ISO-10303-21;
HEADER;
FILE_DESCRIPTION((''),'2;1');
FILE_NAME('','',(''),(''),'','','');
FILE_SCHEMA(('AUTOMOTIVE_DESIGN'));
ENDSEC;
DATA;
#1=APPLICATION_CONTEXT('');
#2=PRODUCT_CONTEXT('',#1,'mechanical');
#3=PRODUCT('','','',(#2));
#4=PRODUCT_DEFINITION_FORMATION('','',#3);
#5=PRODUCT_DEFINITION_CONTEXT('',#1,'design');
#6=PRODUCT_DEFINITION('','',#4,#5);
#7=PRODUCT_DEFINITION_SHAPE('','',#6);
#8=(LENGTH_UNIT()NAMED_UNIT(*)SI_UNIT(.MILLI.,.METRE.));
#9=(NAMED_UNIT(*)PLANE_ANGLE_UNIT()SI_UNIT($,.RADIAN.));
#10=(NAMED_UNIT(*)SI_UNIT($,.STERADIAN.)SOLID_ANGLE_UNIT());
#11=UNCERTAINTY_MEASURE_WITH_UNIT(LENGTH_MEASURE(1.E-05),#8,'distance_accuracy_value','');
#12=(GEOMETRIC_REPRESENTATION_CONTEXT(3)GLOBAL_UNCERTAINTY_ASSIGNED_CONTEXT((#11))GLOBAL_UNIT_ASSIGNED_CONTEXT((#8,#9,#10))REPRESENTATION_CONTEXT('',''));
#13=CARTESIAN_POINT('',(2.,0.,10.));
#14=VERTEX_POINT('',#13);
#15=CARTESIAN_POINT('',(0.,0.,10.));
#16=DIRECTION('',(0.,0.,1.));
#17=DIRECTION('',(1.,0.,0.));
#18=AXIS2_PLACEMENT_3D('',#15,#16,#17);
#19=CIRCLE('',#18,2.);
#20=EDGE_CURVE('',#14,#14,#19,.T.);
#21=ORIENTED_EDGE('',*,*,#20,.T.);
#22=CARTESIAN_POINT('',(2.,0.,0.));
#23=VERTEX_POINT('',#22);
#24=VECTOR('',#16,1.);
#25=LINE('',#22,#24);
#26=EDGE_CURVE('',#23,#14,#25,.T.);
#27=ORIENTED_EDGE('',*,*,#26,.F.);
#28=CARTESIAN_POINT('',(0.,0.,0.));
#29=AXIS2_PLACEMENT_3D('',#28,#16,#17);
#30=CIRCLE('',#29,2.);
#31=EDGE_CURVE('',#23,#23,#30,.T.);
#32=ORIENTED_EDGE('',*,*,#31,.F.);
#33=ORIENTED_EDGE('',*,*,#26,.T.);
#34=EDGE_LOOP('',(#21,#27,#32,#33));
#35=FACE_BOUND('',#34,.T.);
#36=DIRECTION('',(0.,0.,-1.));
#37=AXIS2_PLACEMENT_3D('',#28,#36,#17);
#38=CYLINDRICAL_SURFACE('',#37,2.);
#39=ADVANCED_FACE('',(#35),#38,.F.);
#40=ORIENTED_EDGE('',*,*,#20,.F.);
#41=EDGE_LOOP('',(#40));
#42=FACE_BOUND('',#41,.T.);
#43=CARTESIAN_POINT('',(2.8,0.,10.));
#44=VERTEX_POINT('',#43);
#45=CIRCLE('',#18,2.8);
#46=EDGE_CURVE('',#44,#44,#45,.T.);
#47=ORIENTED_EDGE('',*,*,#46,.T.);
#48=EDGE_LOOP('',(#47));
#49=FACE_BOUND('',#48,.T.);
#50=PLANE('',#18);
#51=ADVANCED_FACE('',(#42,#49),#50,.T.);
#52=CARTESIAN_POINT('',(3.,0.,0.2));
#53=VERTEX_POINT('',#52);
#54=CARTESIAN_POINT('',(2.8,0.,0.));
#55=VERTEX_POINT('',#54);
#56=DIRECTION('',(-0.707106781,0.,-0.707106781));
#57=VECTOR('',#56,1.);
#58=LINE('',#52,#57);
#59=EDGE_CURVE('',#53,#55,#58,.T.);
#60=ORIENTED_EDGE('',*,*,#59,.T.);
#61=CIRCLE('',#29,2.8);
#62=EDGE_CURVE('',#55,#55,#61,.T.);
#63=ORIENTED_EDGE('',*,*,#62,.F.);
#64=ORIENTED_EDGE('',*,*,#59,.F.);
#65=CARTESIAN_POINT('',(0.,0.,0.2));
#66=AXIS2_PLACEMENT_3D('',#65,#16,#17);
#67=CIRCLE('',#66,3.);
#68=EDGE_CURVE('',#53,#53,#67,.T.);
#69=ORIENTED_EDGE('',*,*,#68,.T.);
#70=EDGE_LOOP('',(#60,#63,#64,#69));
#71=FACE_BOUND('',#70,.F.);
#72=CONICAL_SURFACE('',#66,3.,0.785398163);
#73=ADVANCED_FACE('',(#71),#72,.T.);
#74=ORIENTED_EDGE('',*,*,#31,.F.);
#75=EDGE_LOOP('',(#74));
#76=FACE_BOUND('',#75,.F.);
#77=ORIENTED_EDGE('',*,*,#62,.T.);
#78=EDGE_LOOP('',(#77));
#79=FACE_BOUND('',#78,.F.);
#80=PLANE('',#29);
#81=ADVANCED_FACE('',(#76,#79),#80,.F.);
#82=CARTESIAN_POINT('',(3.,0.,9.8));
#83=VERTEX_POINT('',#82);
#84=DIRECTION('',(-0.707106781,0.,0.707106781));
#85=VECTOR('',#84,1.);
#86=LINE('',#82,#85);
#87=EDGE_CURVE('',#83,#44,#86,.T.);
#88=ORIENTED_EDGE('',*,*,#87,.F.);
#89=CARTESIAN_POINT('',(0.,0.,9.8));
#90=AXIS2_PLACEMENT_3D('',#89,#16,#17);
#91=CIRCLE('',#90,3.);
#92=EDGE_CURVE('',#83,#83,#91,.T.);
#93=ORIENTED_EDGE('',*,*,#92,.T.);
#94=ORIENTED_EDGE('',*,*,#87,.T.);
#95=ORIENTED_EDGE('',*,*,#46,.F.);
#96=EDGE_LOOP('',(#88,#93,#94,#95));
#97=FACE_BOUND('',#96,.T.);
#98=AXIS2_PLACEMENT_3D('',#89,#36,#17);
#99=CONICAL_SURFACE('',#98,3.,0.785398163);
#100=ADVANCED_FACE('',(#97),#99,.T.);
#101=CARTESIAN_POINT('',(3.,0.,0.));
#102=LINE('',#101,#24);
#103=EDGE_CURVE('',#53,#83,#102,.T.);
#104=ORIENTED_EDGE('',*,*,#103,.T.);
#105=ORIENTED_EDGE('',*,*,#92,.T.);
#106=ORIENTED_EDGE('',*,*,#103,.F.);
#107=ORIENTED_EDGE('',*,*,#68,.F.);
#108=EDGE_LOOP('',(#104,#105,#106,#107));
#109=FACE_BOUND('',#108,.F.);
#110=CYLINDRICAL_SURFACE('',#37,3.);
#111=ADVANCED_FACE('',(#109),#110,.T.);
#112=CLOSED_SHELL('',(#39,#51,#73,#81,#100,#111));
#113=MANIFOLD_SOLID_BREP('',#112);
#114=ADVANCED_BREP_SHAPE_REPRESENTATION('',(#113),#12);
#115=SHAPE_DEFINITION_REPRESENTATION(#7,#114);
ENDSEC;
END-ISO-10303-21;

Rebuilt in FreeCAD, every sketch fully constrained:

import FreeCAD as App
import Part
import Sketcher
Q = App.Units.Quantity


def edges_at(feature, points):
    """Names of the edges that pass closest to the given points."""
    edges = feature.Shape.Edges
    near = lambda p: min(range(len(edges)), key=lambda i: edges[i].distToShape(Part.Vertex(*p))[0])
    return sorted({f"Edge{near(p) + 1}" for p in points})

doc = App.newDocument("Part")
body = doc.addObject("PartDesign::Body", "Body")

# Sketch on XY plane
sketch1 = doc.addObject("Sketcher::SketchObject", "Sketch")
body.addObject(sketch1)
sketch1.AttachmentSupport = (doc.XY_Plane, [""])
sketch1.MapMode = "FlatFace"
sketch1.addGeometry([
    Part.Circle(App.Vector(0, 0, 0), App.Vector(0, 0, 1), 3),
    Part.Circle(App.Vector(0, 0, 0), App.Vector(0, 0, 1), 2),
], False)
sketch1.addConstraint([
    Sketcher.Constraint("Coincident", 0, 3, -1, 1),
    Sketcher.Constraint("Coincident", 1, 3, -1, 1),
    Sketcher.Constraint("Diameter", 0, Q("6 mm")),
    Sketcher.Constraint("Diameter", 1, Q("4 mm")),
])
pad1 = doc.addObject("PartDesign::Pad", "Pad")
body.addObject(pad1)
pad1.Profile = sketch1
pad1.Length = 10
doc.recompute()

chamfer = doc.addObject("PartDesign::Chamfer", "Chamfer")
body.addObject(chamfer)
chamfer.Base = (pad1, edges_at(pad1, [(-3, 0, 0), (-3, 0, 10)]))
chamfer.Size = 0.2

doc.recompute()
